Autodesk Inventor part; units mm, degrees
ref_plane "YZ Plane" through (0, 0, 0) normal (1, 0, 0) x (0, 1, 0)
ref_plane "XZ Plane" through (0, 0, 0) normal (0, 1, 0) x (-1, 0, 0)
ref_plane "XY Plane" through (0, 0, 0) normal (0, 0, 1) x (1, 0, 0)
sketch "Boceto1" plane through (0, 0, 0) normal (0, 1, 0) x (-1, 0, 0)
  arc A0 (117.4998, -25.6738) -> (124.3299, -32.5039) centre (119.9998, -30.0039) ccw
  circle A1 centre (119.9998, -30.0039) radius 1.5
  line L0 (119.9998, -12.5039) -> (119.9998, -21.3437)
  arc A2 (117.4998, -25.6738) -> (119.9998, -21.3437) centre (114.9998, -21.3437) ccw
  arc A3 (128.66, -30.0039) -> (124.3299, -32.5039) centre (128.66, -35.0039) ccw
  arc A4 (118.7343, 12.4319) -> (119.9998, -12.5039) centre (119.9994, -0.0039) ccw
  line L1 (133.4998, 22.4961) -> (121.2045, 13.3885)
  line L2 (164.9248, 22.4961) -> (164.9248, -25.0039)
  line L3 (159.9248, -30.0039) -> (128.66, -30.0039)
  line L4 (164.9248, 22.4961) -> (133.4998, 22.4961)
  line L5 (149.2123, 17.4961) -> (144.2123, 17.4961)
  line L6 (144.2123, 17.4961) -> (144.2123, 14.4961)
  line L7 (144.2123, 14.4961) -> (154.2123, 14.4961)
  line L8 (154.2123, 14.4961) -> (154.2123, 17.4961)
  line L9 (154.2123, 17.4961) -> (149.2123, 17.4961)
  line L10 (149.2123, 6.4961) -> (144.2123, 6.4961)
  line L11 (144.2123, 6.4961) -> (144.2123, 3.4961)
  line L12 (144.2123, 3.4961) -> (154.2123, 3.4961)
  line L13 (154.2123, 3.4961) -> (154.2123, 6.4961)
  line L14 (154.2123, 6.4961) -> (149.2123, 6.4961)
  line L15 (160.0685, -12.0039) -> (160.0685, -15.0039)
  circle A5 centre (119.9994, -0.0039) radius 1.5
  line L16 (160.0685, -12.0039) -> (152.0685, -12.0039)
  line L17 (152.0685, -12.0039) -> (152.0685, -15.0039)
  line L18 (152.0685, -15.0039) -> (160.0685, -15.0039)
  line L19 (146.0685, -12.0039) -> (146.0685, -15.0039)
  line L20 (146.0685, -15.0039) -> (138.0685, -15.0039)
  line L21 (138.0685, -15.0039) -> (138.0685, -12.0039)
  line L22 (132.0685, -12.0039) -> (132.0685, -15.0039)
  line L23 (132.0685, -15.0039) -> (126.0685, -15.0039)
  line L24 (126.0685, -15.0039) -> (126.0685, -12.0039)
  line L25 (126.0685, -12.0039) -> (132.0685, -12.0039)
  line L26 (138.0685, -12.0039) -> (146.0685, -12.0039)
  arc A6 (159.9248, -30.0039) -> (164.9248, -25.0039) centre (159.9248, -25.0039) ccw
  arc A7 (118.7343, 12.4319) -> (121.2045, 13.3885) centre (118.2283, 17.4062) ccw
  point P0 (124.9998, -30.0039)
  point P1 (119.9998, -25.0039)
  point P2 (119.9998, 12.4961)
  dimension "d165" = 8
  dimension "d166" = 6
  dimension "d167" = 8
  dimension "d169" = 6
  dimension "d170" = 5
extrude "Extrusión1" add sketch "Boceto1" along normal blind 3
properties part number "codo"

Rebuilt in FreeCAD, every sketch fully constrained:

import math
import FreeCAD as App
import Part
import Sketcher

doc = App.newDocument("Part")
body = doc.addObject("PartDesign::Body", "Body")

sketch1 = body.newObject("Sketcher::SketchObject", "Sketch")
sketch1.AttachmentSupport = (doc.getObject("XZ_Plane"), [""])
sketch1.MapMode = "FlatFace"
sketch1.addGeometry(Part.ArcOfCircle(Part.Circle(App.Vector(-115, -21.3, 0), App.Vector(0, 0, 1), 5), math.radians(180), math.radians(240)), False)
sketch1.addGeometry(Part.ArcOfCircle(Part.Circle(App.Vector(-120, -30, 0), App.Vector(0, 0, 1), 5), math.radians(-150), math.radians(60)), False)
sketch1.addGeometry(Part.ArcOfCircle(Part.Circle(App.Vector(-128.7, -35, 0), App.Vector(0, 0, 1), 5), math.radians(30), math.radians(90)), False)
sketch1.addGeometry(Part.LineSegment(App.Vector(-128.7, -30, 0), App.Vector(-159.9, -30, 0)), False)
sketch1.addGeometry(Part.ArcOfCircle(Part.Circle(App.Vector(-159.9, -25, 0), App.Vector(0, 0, 1), 5), math.radians(180), math.radians(270)), False)
sketch1.addGeometry(Part.LineSegment(App.Vector(-164.9, -25, 0), App.Vector(-164.9, 22.5, 0)), False)
sketch1.addGeometry(Part.LineSegment(App.Vector(-164.9, 22.5, 0), App.Vector(-133.5, 22.5, 0)), False)
sketch1.addGeometry(Part.LineSegment(App.Vector(-133.5, 22.5, 0), App.Vector(-121.2, 13.4, 0)), False)
sketch1.addGeometry(Part.ArcOfCircle(Part.Circle(App.Vector(-118.2, 17.4, 0), App.Vector(0, 0, 1), 5), math.radians(-127), math.radians(-96)), False)
sketch1.addGeometry(Part.ArcOfCircle(Part.Circle(App.Vector(-120, 0, 0), App.Vector(0, 0, 1), 12.5), math.radians(-90), math.radians(84)), False)
sketch1.addGeometry(Part.LineSegment(App.Vector(-120, -12.5, 0), App.Vector(-120, -21.3, 0)), False)
sketch1.addGeometry(Part.Circle(App.Vector(-120, -30, 0), App.Vector(0, 0, 1), 1.5), False)
sketch1.addGeometry(Part.LineSegment(App.Vector(-126.1, -12, 0), App.Vector(-132.1, -12, 0)), False)
sketch1.addGeometry(Part.LineSegment(App.Vector(-132.1, -12, 0), App.Vector(-132.1, -15, 0)), False)
sketch1.addGeometry(Part.LineSegment(App.Vector(-132.1, -15, 0), App.Vector(-126.1, -15, 0)), False)
sketch1.addGeometry(Part.LineSegment(App.Vector(-126.1, -15, 0), App.Vector(-126.1, -12, 0)), False)
sketch1.addGeometry(Part.LineSegment(App.Vector(-138.1, -12, 0), App.Vector(-146.1, -12, 0)), False)
sketch1.addGeometry(Part.LineSegment(App.Vector(-146.1, -12, 0), App.Vector(-146.1, -15, 0)), False)
sketch1.addGeometry(Part.LineSegment(App.Vector(-146.1, -15, 0), App.Vector(-138.1, -15, 0)), False)
sketch1.addGeometry(Part.LineSegment(App.Vector(-138.1, -15, 0), App.Vector(-138.1, -12, 0)), False)
sketch1.addGeometry(Part.LineSegment(App.Vector(-152.1, -12, 0), App.Vector(-160.1, -12, 0)), False)
sketch1.addGeometry(Part.LineSegment(App.Vector(-160.1, -12, 0), App.Vector(-160.1, -15, 0)), False)
sketch1.addGeometry(Part.LineSegment(App.Vector(-160.1, -15, 0), App.Vector(-152.1, -15, 0)), False)
sketch1.addGeometry(Part.LineSegment(App.Vector(-152.1, -15, 0), App.Vector(-152.1, -12, 0)), False)
sketch1.addGeometry(Part.Circle(App.Vector(-120, 0, 0), App.Vector(0, 0, 1), 1.5), False)
sketch1.addGeometry(Part.LineSegment(App.Vector(-144.2, 6.5, 0), App.Vector(-154.2, 6.5, 0)), False)
sketch1.addGeometry(Part.LineSegment(App.Vector(-154.2, 6.5, 0), App.Vector(-154.2, 3.5, 0)), False)
sketch1.addGeometry(Part.LineSegment(App.Vector(-154.2, 3.5, 0), App.Vector(-144.2, 3.5, 0)), False)
sketch1.addGeometry(Part.LineSegment(App.Vector(-144.2, 3.5, 0), App.Vector(-144.2, 6.5, 0)), False)
sketch1.addGeometry(Part.LineSegment(App.Vector(-144.2, 17.5, 0), App.Vector(-154.2, 17.5, 0)), False)
sketch1.addGeometry(Part.LineSegment(App.Vector(-154.2, 17.5, 0), App.Vector(-154.2, 14.5, 0)), False)
sketch1.addGeometry(Part.LineSegment(App.Vector(-154.2, 14.5, 0), App.Vector(-144.2, 14.5, 0)), False)
sketch1.addGeometry(Part.LineSegment(App.Vector(-144.2, 14.5, 0), App.Vector(-144.2, 17.5, 0)), False)
sketch1.addConstraint(Sketcher.Constraint("Tangent", 0, 2, 1, 2))
sketch1.addConstraint(Sketcher.Constraint("Tangent", 1, 1, 2, 1))
sketch1.addConstraint(Sketcher.Constraint("Tangent", 2, 2, 3, 1))
sketch1.addConstraint(Sketcher.Constraint("Tangent", 3, 2, 4, 2))
sketch1.addConstraint(Sketcher.Constraint("Tangent", 4, 1, 5, 1))
sketch1.addConstraint(Sketcher.Constraint("Coincident", 5, 2, 6, 1))
sketch1.addConstraint(Sketcher.Constraint("Coincident", 6, 2, 7, 1))
sketch1.addConstraint(Sketcher.Constraint("Tangent", 7, 2, 8, 1))
sketch1.addConstraint(Sketcher.Constraint("Tangent", 8, 2, 9, 2))
sketch1.addConstraint(Sketcher.Constraint("Coincident", 9, 1, 10, 1))
sketch1.addConstraint(Sketcher.Constraint("Tangent", 10, 2, 0, 1))
sketch1.addConstraint(Sketcher.Constraint("Coincident", 12, 2, 13, 1))
sketch1.addConstraint(Sketcher.Constraint("Coincident", 13, 2, 14, 1))
sketch1.addConstraint(Sketcher.Constraint("Coincident", 14, 2, 15, 1))
sketch1.addConstraint(Sketcher.Constraint("Coincident", 15, 2, 12, 1))
sketch1.addConstraint(Sketcher.Constraint("Coincident", 16, 2, 17, 1))
sketch1.addConstraint(Sketcher.Constraint("Coincident", 17, 2, 18, 1))
sketch1.addConstraint(Sketcher.Constraint("Coincident", 18, 2, 19, 1))
sketch1.addConstraint(Sketcher.Constraint("Coincident", 19, 2, 16, 1))
sketch1.addConstraint(Sketcher.Constraint("Coincident", 20, 2, 21, 1))
sketch1.addConstraint(Sketcher.Constraint("Coincident", 21, 2, 22, 1))
sketch1.addConstraint(Sketcher.Constraint("Coincident", 22, 2, 23, 1))
sketch1.addConstraint(Sketcher.Constraint("Coincident", 23, 2, 20, 1))
sketch1.addConstraint(Sketcher.Constraint("Coincident", 25, 2, 26, 1))
sketch1.addConstraint(Sketcher.Constraint("Coincident", 26, 2, 27, 1))
sketch1.addConstraint(Sketcher.Constraint("Coincident", 27, 2, 28, 1))
sketch1.addConstraint(Sketcher.Constraint("Coincident", 28, 2, 25, 1))
sketch1.addConstraint(Sketcher.Constraint("Coincident", 29, 2, 30, 1))
sketch1.addConstraint(Sketcher.Constraint("Coincident", 30, 2, 31, 1))
sketch1.addConstraint(Sketcher.Constraint("Coincident", 31, 2, 32, 1))
sketch1.addConstraint(Sketcher.Constraint("Coincident", 32, 2, 29, 1))
sketch1.addConstraint(Sketcher.Constraint("Horizontal", 3))
sketch1.addConstraint(Sketcher.Constraint("Vertical", 5))
sketch1.addConstraint(Sketcher.Constraint("Horizontal", 6))
sketch1.addConstraint(Sketcher.Constraint("Vertical", 10))
sketch1.addConstraint(Sketcher.Constraint("Horizontal", 12))
sketch1.addConstraint(Sketcher.Constraint("Vertical", 13))
sketch1.addConstraint(Sketcher.Constraint("Horizontal", 14))
sketch1.addConstraint(Sketcher.Constraint("Vertical", 15))
sketch1.addConstraint(Sketcher.Constraint("Horizontal", 16))
sketch1.addConstraint(Sketcher.Constraint("Vertical", 17))
sketch1.addConstraint(Sketcher.Constraint("Horizontal", 18))
sketch1.addConstraint(Sketcher.Constraint("Vertical", 19))
sketch1.addConstraint(Sketcher.Constraint("Horizontal", 20))
sketch1.addConstraint(Sketcher.Constraint("Vertical", 21))
sketch1.addConstraint(Sketcher.Constraint("Horizontal", 22))
sketch1.addConstraint(Sketcher.Constraint("Vertical", 23))
sketch1.addConstraint(Sketcher.Constraint("Horizontal", 25))
sketch1.addConstraint(Sketcher.Constraint("Vertical", 26))
sketch1.addConstraint(Sketcher.Constraint("Horizontal", 27))
sketch1.addConstraint(Sketcher.Constraint("Vertical", 28))
sketch1.addConstraint(Sketcher.Constraint("Horizontal", 29))
sketch1.addConstraint(Sketcher.Constraint("Vertical", 30))
sketch1.addConstraint(Sketcher.Constraint("Horizontal", 31))
sketch1.addConstraint(Sketcher.Constraint("Vertical", 32))
sketch1.addConstraint(Sketcher.Constraint("Coincident", 11, 3, 1, 3))
sketch1.addConstraint(Sketcher.Constraint("Coincident", 24, 3, 9, 3))
sketch1.addConstraint(Sketcher.Constraint("Equal", 0, 1))
sketch1.addConstraint(Sketcher.Constraint("Equal", 1, 2))
sketch1.addConstraint(Sketcher.Constraint("Equal", 2, 4))
sketch1.addConstraint(Sketcher.Constraint("Equal", 4, 8))
sketch1.addConstraint(Sketcher.Constraint("Equal", 11, 24))
sketch1.addConstraint(Sketcher.Constraint("Horizontal", 11, 3, 2, 2))
sketch1.addConstraint(Sketcher.Constraint("Horizontal", 15, 2, 16, 2))
sketch1.addConstraint(Sketcher.Constraint("Horizontal", 14, 2, 17, 2))
sketch1.addConstraint(Sketcher.Constraint("Horizontal", 19, 2, 20, 2))
sketch1.addConstraint(Sketcher.Constraint("Horizontal", 18, 2, 21, 2))
sketch1.addConstraint(Sketcher.Constraint("Vertical", 11, 3, 9, 1))
sketch1.addConstraint(Sketcher.Constraint("Vertical", 26, 2, 29, 2))
sketch1.addConstraint(Sketcher.Constraint("Vertical", 28, 2, 31, 2))
sketch1.addConstraint(Sketcher.Constraint("Equal", 18, 20))
sketch1.addConstraint(Sketcher.Constraint("Equal", 23, 26))
sketch1.addConstraint(Sketcher.Constraint("Equal", 28, 30))
sketch1.addConstraint(Sketcher.Constraint("Radius", 0, 5.0))
sketch1.addConstraint(Sketcher.Constraint("DistanceX", 12, 2, 12, 1, 6.0))
sketch1.addConstraint(Sketcher.Constraint("DistanceX", 16, 2, 16, 1, 8.0))
sketch1.addConstraint(Sketcher.Constraint("Diameter", 11, 3.0))
sketch1.addConstraint(Sketcher.Constraint("DistanceX", 18, 2, 13, 2, 6.0))
sketch1.addConstraint(Sketcher.Constraint("DistanceX", 22, 2, 17, 2, 6.0))
sketch1.addConstraint(Sketcher.Constraint("DistanceY", 29, 2, 5, 2, 5.0))
sketch1.addConstraint(Sketcher.Constraint("DistanceY", 25, 2, 30, 2, 8.0))
sketch1.addConstraint(Sketcher.Constraint("DistanceY", 30, 2, 5, 2, 8.0))
sketch1.addConstraint(Sketcher.Constraint("Radius", 9, 12.5))
sketch1.addConstraint(Sketcher.Constraint("DistanceX", 25, 2, 25, 1, 10.0))
sketch1.addConstraint(Sketcher.Constraint("DistanceY", 5, 1, 5, 2, 47.5))
sketch1.addConstraint(Sketcher.Constraint("DistanceY", 1, 3, 9, 3, 30.0))
sketch1.addConstraint(Sketcher.Constraint("DistanceY", 12, 2, 9, 3, 12.0))
sketch1.addConstraint(Sketcher.Constraint("DistanceX", 9, 3, 0, 3, 4.9996))
sketch1.addConstraint(Sketcher.Constraint("DistanceX", 6, 2, 0, 3, 18.5))
sketch1.addConstraint(Sketcher.Constraint("DistanceX", 6, 1, 6, 2, 31.425))
sketch1.addConstraint(Sketcher.Constraint("DistanceX", 2, 3, -1, 1, 128.66))
sketch1.addConstraint(Sketcher.Constraint("DistanceY", 0, 3, 8, 3, 38.75))
sketch1.addConstraint(Sketcher.Constraint("DistanceY", 1, 3, -1, 1, 30.004))
sketch1.addConstraint(Sketcher.Constraint("DistanceX", 12, 2, 9, 3, 12.069))
sketch1.addConstraint(Sketcher.Constraint("DistanceX", 25, 2, -1, 1, 154.2123))
pad1 = body.newObject("PartDesign::Pad", "Pad")
pad1.Profile = sketch1
pad1.Length = 3
pad1.Reversed = True

doc.recompute()
